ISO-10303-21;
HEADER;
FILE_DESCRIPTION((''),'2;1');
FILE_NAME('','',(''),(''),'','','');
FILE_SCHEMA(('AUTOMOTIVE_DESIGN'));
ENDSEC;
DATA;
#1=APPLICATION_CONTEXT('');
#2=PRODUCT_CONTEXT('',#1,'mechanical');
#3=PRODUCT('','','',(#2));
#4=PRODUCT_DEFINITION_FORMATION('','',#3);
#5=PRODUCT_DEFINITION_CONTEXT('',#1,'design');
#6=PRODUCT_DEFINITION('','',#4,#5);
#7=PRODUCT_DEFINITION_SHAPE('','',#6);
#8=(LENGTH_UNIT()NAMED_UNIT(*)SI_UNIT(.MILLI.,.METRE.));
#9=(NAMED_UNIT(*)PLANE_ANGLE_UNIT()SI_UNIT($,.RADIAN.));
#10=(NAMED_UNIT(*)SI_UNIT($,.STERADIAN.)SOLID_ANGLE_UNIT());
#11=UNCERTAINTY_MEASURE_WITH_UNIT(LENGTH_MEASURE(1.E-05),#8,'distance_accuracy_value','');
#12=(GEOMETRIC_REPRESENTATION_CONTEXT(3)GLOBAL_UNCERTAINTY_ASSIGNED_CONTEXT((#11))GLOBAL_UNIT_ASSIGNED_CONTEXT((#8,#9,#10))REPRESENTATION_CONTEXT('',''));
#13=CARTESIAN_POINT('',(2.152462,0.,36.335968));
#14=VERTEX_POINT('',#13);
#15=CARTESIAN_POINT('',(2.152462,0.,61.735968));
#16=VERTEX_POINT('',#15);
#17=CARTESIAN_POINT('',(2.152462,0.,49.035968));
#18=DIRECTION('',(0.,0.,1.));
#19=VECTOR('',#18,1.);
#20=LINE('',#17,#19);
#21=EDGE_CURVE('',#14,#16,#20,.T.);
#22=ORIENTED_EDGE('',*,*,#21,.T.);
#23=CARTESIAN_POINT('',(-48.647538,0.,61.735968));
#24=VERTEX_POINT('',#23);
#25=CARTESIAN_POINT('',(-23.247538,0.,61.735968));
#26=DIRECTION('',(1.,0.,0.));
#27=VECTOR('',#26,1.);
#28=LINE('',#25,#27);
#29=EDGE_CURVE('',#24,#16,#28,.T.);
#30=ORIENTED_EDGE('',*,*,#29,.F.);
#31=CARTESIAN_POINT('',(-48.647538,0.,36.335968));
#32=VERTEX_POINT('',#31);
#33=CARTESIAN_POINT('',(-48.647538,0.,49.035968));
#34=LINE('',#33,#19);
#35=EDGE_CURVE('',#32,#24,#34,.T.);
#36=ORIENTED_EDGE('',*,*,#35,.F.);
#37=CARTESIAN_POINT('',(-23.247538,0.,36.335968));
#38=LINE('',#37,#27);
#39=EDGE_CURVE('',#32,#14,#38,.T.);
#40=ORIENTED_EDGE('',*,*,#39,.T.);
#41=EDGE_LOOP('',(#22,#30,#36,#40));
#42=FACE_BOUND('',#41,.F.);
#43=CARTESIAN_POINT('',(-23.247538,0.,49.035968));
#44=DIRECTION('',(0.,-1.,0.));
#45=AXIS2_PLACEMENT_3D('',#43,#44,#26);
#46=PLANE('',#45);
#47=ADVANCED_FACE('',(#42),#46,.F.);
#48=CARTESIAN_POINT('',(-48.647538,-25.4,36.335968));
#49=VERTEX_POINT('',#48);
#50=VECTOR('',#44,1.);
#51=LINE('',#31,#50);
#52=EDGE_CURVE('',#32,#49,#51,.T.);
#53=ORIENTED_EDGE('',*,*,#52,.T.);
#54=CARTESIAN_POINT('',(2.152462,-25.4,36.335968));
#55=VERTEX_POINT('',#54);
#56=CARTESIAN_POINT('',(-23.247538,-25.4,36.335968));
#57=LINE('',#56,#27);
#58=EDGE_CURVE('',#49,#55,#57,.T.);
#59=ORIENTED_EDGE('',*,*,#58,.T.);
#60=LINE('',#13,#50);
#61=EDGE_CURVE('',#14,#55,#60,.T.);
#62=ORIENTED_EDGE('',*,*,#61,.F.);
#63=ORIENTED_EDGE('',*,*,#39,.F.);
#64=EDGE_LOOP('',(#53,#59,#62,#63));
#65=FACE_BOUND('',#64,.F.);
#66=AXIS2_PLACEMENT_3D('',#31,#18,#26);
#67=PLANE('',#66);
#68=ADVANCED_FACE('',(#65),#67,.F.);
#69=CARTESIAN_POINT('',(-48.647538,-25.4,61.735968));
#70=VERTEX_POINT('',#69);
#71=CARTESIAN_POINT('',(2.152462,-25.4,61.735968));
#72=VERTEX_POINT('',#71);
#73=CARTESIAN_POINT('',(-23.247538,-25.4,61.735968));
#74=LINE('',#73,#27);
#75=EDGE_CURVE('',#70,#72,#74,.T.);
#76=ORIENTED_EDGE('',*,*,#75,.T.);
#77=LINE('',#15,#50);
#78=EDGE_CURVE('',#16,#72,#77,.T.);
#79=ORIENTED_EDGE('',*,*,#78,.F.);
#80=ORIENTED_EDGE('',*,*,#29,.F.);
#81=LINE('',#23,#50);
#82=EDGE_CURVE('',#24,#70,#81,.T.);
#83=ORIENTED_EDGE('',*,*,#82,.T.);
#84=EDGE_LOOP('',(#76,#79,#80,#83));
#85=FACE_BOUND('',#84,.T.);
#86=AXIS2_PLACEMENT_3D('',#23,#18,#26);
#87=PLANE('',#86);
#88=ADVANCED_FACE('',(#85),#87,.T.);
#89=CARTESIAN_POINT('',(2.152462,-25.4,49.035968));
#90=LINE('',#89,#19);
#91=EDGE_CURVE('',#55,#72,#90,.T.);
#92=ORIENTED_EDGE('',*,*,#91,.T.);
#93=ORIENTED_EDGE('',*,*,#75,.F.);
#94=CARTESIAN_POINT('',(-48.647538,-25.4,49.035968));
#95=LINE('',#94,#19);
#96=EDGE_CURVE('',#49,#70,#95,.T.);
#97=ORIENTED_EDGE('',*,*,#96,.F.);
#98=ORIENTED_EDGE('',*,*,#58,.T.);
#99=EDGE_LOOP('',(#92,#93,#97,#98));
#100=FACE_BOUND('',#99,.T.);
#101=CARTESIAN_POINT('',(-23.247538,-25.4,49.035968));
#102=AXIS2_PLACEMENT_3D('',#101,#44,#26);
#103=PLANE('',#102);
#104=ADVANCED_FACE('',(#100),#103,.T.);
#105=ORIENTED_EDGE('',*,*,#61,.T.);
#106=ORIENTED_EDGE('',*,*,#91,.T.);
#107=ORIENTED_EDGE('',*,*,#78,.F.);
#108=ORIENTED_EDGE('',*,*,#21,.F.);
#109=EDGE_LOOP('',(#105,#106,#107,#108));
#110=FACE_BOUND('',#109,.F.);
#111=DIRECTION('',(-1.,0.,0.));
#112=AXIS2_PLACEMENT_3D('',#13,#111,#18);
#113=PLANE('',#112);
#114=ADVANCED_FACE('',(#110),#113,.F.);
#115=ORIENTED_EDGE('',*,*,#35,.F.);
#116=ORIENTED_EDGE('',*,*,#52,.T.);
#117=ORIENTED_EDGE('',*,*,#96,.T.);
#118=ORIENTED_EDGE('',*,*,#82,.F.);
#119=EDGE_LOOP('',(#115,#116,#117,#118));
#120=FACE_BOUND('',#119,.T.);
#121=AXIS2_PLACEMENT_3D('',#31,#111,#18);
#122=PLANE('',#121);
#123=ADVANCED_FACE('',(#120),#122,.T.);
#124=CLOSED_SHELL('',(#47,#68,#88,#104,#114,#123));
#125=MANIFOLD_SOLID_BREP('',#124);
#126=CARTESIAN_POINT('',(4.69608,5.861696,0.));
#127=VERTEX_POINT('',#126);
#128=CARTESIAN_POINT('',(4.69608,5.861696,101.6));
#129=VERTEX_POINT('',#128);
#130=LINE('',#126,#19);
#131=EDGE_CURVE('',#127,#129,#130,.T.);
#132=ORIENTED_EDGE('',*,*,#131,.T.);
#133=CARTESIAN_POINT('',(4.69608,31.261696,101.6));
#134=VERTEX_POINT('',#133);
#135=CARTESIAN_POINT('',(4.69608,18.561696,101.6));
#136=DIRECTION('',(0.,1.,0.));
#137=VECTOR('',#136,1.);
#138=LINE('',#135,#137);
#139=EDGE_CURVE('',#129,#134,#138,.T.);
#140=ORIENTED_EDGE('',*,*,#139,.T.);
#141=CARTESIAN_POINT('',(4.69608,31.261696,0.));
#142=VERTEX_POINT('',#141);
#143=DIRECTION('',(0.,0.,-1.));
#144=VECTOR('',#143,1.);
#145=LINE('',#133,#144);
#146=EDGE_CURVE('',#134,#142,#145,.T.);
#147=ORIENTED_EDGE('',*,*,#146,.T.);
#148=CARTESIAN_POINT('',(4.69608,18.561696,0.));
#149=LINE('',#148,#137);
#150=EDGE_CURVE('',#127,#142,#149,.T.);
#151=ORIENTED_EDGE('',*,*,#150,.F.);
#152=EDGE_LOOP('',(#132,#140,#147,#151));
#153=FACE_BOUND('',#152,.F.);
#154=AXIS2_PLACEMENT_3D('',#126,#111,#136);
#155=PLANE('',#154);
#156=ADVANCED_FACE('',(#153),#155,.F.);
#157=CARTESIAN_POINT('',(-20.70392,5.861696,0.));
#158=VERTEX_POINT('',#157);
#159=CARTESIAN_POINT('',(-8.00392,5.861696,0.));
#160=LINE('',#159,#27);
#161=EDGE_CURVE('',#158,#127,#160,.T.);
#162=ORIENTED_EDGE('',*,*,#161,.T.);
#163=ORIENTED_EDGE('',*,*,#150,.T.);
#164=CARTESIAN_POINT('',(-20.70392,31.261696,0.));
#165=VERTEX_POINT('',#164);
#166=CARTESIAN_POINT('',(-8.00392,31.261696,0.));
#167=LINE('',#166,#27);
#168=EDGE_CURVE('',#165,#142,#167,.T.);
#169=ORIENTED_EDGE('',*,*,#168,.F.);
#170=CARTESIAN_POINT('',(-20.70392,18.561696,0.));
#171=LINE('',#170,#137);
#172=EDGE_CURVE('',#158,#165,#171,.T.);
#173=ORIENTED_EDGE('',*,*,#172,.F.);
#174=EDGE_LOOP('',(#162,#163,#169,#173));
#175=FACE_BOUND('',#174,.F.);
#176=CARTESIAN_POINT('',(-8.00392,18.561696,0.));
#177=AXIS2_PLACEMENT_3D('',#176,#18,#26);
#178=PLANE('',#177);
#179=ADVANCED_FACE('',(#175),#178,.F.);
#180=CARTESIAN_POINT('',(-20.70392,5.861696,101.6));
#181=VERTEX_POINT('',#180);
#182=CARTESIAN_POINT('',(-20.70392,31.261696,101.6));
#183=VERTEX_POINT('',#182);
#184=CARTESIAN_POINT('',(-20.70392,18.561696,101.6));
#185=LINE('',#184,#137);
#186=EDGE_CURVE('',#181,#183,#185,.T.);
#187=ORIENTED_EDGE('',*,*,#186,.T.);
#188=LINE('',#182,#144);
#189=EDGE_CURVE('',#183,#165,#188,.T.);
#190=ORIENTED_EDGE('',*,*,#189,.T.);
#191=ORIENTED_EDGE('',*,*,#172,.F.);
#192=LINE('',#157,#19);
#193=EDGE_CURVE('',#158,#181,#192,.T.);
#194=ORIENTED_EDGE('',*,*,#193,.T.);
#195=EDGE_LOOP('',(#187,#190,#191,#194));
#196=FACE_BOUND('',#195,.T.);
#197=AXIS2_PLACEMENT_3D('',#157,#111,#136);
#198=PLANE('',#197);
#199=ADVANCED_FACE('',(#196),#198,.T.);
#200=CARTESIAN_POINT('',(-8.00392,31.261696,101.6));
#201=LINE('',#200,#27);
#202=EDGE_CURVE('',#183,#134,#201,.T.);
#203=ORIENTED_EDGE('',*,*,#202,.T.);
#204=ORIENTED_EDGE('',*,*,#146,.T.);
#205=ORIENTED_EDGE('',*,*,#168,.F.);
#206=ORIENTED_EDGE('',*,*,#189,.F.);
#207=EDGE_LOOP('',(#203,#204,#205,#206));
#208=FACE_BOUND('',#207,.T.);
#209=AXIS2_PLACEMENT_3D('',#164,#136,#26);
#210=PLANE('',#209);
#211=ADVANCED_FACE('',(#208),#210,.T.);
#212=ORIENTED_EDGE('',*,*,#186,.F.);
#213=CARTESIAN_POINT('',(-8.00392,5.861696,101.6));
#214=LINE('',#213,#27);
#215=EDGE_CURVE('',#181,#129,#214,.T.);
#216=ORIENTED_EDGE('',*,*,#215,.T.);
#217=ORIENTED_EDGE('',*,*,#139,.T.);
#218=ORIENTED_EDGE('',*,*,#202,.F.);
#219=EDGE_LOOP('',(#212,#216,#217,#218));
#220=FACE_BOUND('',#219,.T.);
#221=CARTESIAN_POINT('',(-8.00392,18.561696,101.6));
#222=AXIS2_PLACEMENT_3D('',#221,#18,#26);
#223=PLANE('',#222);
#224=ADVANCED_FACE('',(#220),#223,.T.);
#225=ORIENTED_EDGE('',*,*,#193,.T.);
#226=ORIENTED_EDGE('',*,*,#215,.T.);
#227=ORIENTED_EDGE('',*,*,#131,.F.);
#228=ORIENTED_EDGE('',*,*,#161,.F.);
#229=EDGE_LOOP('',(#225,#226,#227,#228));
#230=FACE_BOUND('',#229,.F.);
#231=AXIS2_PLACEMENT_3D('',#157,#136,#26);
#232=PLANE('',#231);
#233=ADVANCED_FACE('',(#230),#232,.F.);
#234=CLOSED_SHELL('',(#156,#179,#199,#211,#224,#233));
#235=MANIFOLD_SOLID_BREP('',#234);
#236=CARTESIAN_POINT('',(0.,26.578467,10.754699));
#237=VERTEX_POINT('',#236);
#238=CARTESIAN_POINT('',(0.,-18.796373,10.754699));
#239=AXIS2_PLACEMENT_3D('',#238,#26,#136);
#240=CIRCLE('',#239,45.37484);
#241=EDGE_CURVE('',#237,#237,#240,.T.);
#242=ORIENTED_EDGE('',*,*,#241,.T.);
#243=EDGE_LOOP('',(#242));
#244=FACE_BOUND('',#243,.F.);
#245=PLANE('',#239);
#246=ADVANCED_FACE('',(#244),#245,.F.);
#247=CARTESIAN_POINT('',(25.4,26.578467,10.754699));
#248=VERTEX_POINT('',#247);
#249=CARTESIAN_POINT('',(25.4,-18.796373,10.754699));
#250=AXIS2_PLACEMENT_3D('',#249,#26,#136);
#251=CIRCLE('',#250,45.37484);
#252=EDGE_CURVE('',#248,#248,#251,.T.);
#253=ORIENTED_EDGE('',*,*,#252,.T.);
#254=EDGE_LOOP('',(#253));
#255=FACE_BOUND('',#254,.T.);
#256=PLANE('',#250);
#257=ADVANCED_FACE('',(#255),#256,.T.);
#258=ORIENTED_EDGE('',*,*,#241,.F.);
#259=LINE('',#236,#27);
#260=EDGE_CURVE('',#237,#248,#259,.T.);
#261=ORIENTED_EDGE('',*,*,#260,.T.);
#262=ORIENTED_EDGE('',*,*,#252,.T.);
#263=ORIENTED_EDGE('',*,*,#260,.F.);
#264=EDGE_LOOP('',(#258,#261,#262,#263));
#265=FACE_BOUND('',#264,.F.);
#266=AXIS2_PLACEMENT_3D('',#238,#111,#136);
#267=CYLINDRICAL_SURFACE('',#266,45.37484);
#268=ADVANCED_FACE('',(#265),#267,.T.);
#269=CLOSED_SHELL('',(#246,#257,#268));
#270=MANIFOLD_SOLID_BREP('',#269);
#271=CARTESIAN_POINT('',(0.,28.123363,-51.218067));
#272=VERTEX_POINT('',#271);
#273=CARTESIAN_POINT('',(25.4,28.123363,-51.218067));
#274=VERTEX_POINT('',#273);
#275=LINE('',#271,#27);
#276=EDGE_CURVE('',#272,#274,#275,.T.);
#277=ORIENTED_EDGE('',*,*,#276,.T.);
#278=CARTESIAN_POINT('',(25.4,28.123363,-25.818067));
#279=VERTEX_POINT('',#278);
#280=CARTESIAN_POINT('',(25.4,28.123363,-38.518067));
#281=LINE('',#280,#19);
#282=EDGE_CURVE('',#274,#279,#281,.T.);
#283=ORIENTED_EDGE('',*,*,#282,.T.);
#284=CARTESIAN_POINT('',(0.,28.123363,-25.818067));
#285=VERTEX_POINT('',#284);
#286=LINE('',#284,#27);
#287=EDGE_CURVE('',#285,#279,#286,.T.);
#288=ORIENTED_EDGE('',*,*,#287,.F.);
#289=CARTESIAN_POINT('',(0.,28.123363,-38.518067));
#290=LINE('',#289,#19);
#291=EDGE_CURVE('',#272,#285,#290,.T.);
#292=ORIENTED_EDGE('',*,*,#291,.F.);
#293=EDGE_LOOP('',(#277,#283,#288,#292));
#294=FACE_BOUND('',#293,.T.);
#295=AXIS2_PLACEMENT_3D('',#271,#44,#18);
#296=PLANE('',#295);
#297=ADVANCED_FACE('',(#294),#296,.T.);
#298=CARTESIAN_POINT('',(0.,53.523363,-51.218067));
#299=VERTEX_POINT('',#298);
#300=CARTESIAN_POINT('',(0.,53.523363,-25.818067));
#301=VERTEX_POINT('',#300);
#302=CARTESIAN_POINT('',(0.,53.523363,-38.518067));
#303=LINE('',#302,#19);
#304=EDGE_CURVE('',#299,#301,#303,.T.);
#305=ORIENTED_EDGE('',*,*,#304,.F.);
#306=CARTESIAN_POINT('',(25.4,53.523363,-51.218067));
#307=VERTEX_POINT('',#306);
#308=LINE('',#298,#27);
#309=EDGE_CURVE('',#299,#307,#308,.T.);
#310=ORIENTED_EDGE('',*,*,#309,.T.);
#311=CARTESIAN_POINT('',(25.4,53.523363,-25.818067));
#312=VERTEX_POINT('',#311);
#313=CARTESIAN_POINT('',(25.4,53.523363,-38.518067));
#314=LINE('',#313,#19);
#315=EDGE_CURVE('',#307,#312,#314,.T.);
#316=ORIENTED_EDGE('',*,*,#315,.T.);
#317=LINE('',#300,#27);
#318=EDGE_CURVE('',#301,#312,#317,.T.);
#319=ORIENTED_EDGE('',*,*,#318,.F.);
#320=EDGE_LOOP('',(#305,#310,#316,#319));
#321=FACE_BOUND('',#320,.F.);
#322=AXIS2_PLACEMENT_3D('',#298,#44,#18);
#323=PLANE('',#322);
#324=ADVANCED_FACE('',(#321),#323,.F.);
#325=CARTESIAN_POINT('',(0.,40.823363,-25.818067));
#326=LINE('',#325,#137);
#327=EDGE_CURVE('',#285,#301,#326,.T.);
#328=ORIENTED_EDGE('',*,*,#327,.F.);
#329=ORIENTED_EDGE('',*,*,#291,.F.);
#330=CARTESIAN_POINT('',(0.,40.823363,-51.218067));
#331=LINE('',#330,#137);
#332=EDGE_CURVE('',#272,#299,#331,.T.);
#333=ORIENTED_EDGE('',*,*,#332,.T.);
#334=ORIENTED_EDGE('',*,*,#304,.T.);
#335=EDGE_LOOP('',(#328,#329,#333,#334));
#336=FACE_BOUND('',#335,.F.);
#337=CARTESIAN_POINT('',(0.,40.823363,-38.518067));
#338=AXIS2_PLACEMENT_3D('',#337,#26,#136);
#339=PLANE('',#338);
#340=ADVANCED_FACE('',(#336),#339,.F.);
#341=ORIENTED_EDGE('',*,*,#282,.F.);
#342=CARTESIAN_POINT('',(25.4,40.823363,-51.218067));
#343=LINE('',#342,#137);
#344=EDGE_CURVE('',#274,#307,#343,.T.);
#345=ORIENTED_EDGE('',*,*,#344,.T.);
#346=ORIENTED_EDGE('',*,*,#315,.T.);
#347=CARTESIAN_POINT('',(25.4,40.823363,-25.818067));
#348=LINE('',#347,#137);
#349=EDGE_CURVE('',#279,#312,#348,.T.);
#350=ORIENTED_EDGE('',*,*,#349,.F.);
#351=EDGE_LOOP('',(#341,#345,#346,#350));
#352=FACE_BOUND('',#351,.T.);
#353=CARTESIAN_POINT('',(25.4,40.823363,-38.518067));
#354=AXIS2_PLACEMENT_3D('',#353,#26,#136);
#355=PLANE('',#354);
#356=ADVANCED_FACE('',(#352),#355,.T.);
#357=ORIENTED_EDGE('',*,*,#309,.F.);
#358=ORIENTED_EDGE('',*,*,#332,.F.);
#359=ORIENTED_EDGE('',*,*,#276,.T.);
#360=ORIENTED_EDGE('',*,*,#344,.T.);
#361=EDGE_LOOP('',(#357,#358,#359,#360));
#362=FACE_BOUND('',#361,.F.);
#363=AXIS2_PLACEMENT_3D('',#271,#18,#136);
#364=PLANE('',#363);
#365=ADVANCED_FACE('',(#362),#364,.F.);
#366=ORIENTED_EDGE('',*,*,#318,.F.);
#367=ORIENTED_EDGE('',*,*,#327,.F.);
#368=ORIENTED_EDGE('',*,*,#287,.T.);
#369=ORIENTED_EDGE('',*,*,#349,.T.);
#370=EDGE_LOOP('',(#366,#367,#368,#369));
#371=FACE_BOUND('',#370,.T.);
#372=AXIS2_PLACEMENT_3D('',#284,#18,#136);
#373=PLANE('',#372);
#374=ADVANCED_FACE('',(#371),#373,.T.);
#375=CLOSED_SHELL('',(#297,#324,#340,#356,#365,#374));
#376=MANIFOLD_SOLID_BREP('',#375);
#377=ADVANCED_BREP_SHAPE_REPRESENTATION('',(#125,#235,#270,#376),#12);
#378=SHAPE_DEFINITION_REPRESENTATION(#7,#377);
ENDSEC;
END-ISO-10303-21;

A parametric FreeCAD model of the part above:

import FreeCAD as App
import Part
import Sketcher
Q = App.Units.Quantity


def add_polygon(sketch, points):
    """Adds a closed chain of lines whose ends are joined by coincident constraints."""
    first, n = sketch.GeometryCount, len(points)
    for a, b in zip(points, points[1:] + points[:1]):
        sketch.addGeometry(Part.LineSegment(App.Vector(*a, 0), App.Vector(*b, 0)), False)
    for i in range(n):
        sketch.addConstraint(Sketcher.Constraint("Coincident", first + i, 2, first + (i + 1) % n, 1))

doc = App.newDocument("Part")
body = doc.addObject("PartDesign::Body", "Body")

# Sketch on XZ plane
sketch1 = body.newObject("Sketcher::SketchObject", "Sketch")
sketch1.AttachmentSupport = (doc.getObject("XZ_Plane"), [""])
sketch1.MapMode = "FlatFace"
add_polygon(sketch1, [(-49, 62), (-49, 36), (2, 36), (2, 62)])  # lines 0-3
sketch1.addConstraint([
    Sketcher.Constraint("Vertical", 0),
    Sketcher.Constraint("Horizontal", 1),
    Sketcher.Constraint("Vertical", 2),
    Sketcher.Constraint("Horizontal", 3),
    Sketcher.Constraint("DistanceX", 1, 1, 1, 2, Q("2 in")),
    Sketcher.Constraint("DistanceY", 0, 2, 0, 1, Q("1 in")),
    Sketcher.Constraint("DistanceX", -1, 1, 1, 2, Q("2.152462 mm")),
    Sketcher.Constraint("DistanceY", -1, 1, 0, 2, Q("36.335968 mm")),
])
pad1 = body.newObject("PartDesign::Pad", "Pad")
pad1.Profile = sketch1
pad1.Length = Q("1 in")
body2 = doc.addObject("PartDesign::Body", "Body001")

# Sketch on XY plane
sketch2 = body2.newObject("Sketcher::SketchObject", "Sketch001")
sketch2.AttachmentSupport = (doc.getObject("XY_Plane001"), [""])
sketch2.MapMode = "FlatFace"
add_polygon(sketch2, [(-21, 31), (-21, 6), (5, 6), (5, 31)])  # lines 0-3
sketch2.addConstraint([
    Sketcher.Constraint("Vertical", 0),
    Sketcher.Constraint("Horizontal", 1),
    Sketcher.Constraint("Vertical", 2),
    Sketcher.Constraint("Horizontal", 3),
    Sketcher.Constraint("Equal", 3, 0),
    Sketcher.Constraint("DistanceX", 1, 1, 1, 2, Q("1 in")),
    Sketcher.Constraint("DistanceX", 0, 2, -1, 1, Q("20.70392 mm")),
    Sketcher.Constraint("DistanceY", -1, 1, 0, 2, Q("5.861696 mm")),
])
pad2 = body2.newObject("PartDesign::Pad", "Pad001")
pad2.Profile = sketch2
pad2.Length = Q("4 in")

# Sketch on XY plane
sketch3 = body2.newObject("Sketcher::SketchObject", "Sketch002")
sketch3.AttachmentSupport = (doc.getObject("XY_Plane001"), [""])
sketch3.MapMode = "FlatFace"
add_polygon(sketch3, [(-21, 31), (-21, 6), (5, 6), (5, 31)])  # lines 0-3
sketch3.addConstraint([
    Sketcher.Constraint("Vertical", 0),
    Sketcher.Constraint("Horizontal", 1),
    Sketcher.Constraint("Vertical", 2),
    Sketcher.Constraint("Horizontal", 3),
    Sketcher.Constraint("Equal", 3, 0),
    Sketcher.Constraint("DistanceX", 1, 1, 1, 2, Q("1 in")),
    Sketcher.Constraint("DistanceX", 0, 2, -1, 1, Q("20.70392 mm")),
    Sketcher.Constraint("DistanceY", -1, 1, 0, 2, Q("5.861696 mm")),
])
pad3 = body2.newObject("PartDesign::Pad", "Pad002")
pad3.Profile = sketch3
pad3.Length = Q("1 in")
body3 = doc.addObject("PartDesign::Body", "Body002")

# Sketch on YZ plane
sketch4 = body3.newObject("Sketcher::SketchObject", "Sketch003")
sketch4.AttachmentSupport = (doc.getObject("YZ_Plane002"), [""])
sketch4.MapMode = "FlatFace"
add_polygon(sketch4, [(28, -26), (28, -51), (54, -51), (54, -26)])  # lines 0-3
sketch4.addConstraint([
    Sketcher.Constraint("Vertical", 0),
    Sketcher.Constraint("Horizontal", 1),
    Sketcher.Constraint("Vertical", 2),
    Sketcher.Constraint("Horizontal", 3),
    Sketcher.Constraint("Equal", 3, 0),
    Sketcher.Constraint("DistanceX", 1, 1, 1, 2, Q("1 in")),
    Sketcher.Constraint("DistanceX", -1, 1, 0, 2, Q("28.123363 mm")),
    Sketcher.Constraint("DistanceY", 0, 2, -1, 1, Q("51.218067 mm")),
])
pad4 = body3.newObject("PartDesign::Pad", "Pad003")
pad4.Profile = sketch4
pad4.Length = Q("1 in")
body4 = doc.addObject("PartDesign::Body", "Body003")

# Sketch on YZ plane
sketch5 = body4.newObject("Sketcher::SketchObject", "Sketch004")
sketch5.AttachmentSupport = (doc.getObject("YZ_Plane003"), [""])
sketch5.MapMode = "FlatFace"
sketch5.addGeometry(Part.Circle(App.Vector(-19, 11, 0), App.Vector(0, 0, 1), 45), False)
sketch5.addConstraint([
    Sketcher.Constraint("Diameter", 0, Q("90.74968 mm")),
    Sketcher.Constraint("DistanceY", -1, 1, 0, 3, Q("10.754699 mm")),
    Sketcher.Constraint("DistanceX", 0, 3, -1, 1, Q("18.796373 mm")),
])
pad5 = body4.newObject("PartDesign::Pad", "Pad004")
pad5.Profile = sketch5
pad5.Length = Q("1 in")

doc.recompute()
